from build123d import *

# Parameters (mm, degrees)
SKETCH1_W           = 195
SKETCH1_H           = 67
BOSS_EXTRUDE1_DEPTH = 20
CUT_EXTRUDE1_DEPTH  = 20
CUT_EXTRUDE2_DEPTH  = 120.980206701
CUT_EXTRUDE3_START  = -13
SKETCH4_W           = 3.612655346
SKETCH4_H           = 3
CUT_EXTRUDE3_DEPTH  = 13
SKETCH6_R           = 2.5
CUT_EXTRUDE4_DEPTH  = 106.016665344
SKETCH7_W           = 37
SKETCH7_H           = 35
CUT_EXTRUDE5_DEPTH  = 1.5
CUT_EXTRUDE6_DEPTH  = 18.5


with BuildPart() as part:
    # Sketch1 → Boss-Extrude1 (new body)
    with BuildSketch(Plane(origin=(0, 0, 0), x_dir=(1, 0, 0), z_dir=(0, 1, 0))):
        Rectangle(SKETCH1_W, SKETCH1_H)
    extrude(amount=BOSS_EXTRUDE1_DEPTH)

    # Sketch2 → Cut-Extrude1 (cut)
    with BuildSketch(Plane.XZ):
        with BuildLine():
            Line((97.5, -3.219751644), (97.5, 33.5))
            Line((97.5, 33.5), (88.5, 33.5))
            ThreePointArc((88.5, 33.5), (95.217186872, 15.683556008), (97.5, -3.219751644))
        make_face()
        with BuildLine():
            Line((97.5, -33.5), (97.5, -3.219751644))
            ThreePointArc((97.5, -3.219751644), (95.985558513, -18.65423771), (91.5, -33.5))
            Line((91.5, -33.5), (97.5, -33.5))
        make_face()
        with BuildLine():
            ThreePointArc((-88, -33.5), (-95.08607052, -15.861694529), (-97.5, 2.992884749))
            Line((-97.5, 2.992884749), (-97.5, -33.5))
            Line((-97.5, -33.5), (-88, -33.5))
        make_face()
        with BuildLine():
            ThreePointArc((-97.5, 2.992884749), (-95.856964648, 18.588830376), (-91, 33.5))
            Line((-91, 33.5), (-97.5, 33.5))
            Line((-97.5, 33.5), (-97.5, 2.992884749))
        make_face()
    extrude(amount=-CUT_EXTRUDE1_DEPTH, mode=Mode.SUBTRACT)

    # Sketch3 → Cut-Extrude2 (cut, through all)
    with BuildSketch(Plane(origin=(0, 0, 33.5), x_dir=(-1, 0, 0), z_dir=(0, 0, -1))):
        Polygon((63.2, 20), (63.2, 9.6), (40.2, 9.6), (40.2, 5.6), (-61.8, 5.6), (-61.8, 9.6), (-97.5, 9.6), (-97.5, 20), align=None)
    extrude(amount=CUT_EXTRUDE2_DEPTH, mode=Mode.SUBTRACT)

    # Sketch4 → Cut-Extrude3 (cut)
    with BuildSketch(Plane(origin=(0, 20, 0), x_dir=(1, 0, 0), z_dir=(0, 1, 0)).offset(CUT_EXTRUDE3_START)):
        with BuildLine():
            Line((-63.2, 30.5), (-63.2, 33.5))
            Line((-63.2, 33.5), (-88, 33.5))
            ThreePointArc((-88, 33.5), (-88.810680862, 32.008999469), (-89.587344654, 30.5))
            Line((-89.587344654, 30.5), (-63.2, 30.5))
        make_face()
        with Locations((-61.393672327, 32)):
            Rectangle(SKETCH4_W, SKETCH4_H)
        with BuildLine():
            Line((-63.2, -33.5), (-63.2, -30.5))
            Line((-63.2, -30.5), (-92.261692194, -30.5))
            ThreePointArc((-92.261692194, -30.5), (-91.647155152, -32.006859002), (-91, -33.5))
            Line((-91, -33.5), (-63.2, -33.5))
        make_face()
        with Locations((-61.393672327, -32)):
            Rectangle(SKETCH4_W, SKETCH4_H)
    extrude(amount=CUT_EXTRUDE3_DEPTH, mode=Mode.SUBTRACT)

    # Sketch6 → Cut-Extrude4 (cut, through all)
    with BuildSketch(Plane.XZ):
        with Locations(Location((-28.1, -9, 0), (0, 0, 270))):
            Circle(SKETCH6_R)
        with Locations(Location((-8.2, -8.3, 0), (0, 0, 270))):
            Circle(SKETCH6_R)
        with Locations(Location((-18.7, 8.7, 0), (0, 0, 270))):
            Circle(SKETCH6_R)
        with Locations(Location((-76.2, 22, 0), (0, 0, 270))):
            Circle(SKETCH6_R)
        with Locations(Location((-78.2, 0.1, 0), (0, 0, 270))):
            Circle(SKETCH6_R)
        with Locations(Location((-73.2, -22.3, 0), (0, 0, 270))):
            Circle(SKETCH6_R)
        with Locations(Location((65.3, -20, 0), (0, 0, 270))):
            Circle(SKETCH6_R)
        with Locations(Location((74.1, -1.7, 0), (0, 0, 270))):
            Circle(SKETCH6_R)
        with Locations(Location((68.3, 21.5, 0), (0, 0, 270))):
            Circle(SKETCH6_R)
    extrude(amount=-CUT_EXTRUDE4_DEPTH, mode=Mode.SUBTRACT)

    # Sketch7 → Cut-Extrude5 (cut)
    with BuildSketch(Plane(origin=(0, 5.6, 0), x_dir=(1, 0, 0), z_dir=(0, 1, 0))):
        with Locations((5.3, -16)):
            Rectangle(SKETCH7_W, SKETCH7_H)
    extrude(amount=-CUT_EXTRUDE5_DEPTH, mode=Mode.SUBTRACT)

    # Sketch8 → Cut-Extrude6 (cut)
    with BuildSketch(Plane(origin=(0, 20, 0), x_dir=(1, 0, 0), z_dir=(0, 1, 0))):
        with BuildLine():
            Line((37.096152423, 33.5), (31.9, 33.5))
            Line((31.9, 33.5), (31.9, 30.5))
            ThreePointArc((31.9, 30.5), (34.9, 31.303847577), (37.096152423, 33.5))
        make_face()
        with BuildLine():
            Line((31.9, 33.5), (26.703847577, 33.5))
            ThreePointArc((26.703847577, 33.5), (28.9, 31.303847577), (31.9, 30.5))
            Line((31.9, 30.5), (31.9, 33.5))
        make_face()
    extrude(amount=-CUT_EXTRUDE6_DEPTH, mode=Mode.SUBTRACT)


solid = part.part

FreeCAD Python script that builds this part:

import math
import FreeCAD as App
import Part
import Sketcher
from FreeCAD import Vector
Q = App.Units.Quantity

doc = App.newDocument("Part")
body = doc.addObject("PartDesign::Body", "Body")

# Sketch on XZ plane
sketch1 = body.newObject("Sketcher::SketchObject", "Sketch")
sketch1.AttachmentSupport = (doc.getObject("XZ_Plane"), [""])
sketch1.MapMode = "FlatFace"
sketch1.addGeometry([
    Part.LineSegment(Vector(-97.5, -33.5, 0), Vector(-97.5, 33.5, 0)),
    Part.LineSegment(Vector(-97.5, 33.5, 0), Vector(97.5, 33.5, 0)),
    Part.LineSegment(Vector(97.5, 33.5, 0), Vector(97.5, -33.5, 0)),
    Part.LineSegment(Vector(97.5, -33.5, 0), Vector(-97.5, -33.5, 0)),
], False)
sketch1.addConstraint([
    Sketcher.Constraint("Coincident", 0, 2, 1, 1),
    Sketcher.Constraint("Coincident", 1, 2, 2, 1),
    Sketcher.Constraint("Coincident", 2, 2, 3, 1),
    Sketcher.Constraint("Coincident", 3, 2, 0, 1),
    Sketcher.Constraint("Vertical", 0),
    Sketcher.Constraint("Horizontal", 1),
    Sketcher.Constraint("Vertical", 2),
    Sketcher.Constraint("Horizontal", 3),
    Sketcher.Constraint("Symmetric", 0, 2, 2, 2, -1, 1),
    Sketcher.Constraint("DistanceX", 1, 1, 1, 2, Q("195 mm")),
    Sketcher.Constraint("DistanceY", 0, 1, 0, 2, Q("67 mm")),
])
pad1 = body.newObject("PartDesign::Pad", "Pad")
pad1.Profile = sketch1
pad1.Length = 20
pad1.Reversed = True

# Sketch on XZ plane
sketch2 = body.newObject("Sketcher::SketchObject", "Sketch001")
sketch2.AttachmentSupport = (doc.getObject("XZ_Plane"), [""])
sketch2.MapMode = "FlatFace"
sketch2.addGeometry([
    Part.LineSegment(Vector(97.5, -3.219752, 0), Vector(97.5, 33.5, 0)),  # 0
    Part.LineSegment(Vector(97.5, 33.5, 0), Vector(88.5, 33.5, 0)),  # 1
    Part.ArcOfCircle(Part.Circle(Vector(18.092213, -3.219752, 0), Vector(0, 0, 1), 79.407787), math.radians(0), math.radians(27.543379)),  # 2
    Part.LineSegment(Vector(97.5, -33.5, 0), Vector(97.5, -3.219752, 0)),  # 3
    Part.ArcOfCircle(Part.Circle(Vector(18.092213, -3.219752, 0), Vector(0, 0, 1), 79.407787), math.radians(-22.415838), math.radians(0)),  # 4
    Part.LineSegment(Vector(91.5, -33.5, 0), Vector(97.5, -33.5, 0)),  # 5
    Part.ArcOfCircle(Part.Circle(Vector(-22.658915, 2.992884, 0), Vector(0, 0, 1), 74.841085), math.radians(180), math.radians(209.183284)),  # 6
    Part.LineSegment(Vector(-97.5, 2.992885, 0), Vector(-97.5, -33.5, 0)),  # 7
    Part.LineSegment(Vector(-97.5, -33.5, 0), Vector(-88, -33.5, 0)),  # 8
    Part.ArcOfCircle(Part.Circle(Vector(-22.658915, 2.992884, 0), Vector(0, 0, 1), 74.841085), math.radians(155.944256), math.radians(180)),  # 9
    Part.LineSegment(Vector(-91, 33.5, 0), Vector(-97.5, 33.5, 0)),  # 10
    Part.LineSegment(Vector(-97.5, 33.5, 0), Vector(-97.5, 2.992885, 0)),  # 11
], False)
sketch2.addConstraint([
    Sketcher.Constraint("Coincident", 0, 2, 1, 1),
    Sketcher.Constraint("Coincident", 1, 2, 2, 2),
    Sketcher.Constraint("Tangent", 2, 1, 0, 1),
    Sketcher.Constraint("Tangent", 3, 2, 4, 2),
    Sketcher.Constraint("Coincident", 4, 1, 5, 1),
    Sketcher.Constraint("Coincident", 5, 2, 3, 1),
    Sketcher.Constraint("Tangent", 6, 1, 7, 1),
    Sketcher.Constraint("Coincident", 7, 2, 8, 1),
    Sketcher.Constraint("Coincident", 8, 2, 6, 2),
    Sketcher.Constraint("Coincident", 9, 1, 10, 1),
    Sketcher.Constraint("Coincident", 10, 2, 11, 1),
    Sketcher.Constraint("Tangent", 11, 2, 9, 2),
    Sketcher.Constraint("Vertical", 0),
    Sketcher.Constraint("Horizontal", 1),
    Sketcher.Constraint("Vertical", 3),
    Sketcher.Constraint("Horizontal", 5),
    Sketcher.Constraint("Vertical", 7),
    Sketcher.Constraint("Horizontal", 8),
    Sketcher.Constraint("Horizontal", 10),
    Sketcher.Constraint("Vertical", 11),
    Sketcher.Constraint("Coincident", 4, 3, 2, 3),
    Sketcher.Constraint("Coincident", 9, 3, 6, 3),
    Sketcher.Constraint("Equal", 2, 4),
    Sketcher.Constraint("Equal", 6, 9),
    Sketcher.Constraint("Symmetric", 0, 2, 7, 2, -1, 1),
    Sketcher.Constraint("Horizontal", 5, 2, 7, 2),
    Sketcher.Constraint("Horizontal", 1, 2, 9, 1),
    Sketcher.Constraint("DistanceX", 1, 2, 1, 1, Q("9 mm")),
    Sketcher.Constraint("DistanceX", 5, 1, 5, 2, Q("6 mm")),
    Sketcher.Constraint("DistanceX", 8, 1, 8, 2, Q("9.5 mm")),
    Sketcher.Constraint("DistanceX", 10, 2, 10, 1, Q("6.5 mm")),
    Sketcher.Constraint("DistanceX", 8, 2, -1, 1, Q("88 mm")),
    Sketcher.Constraint("DistanceY", 4, 1, 1, 2, Q("67 mm")),
])
pocket1 = body.newObject("PartDesign::Pocket", "Pocket")
pocket1.Profile = sketch2
pocket1.Length = 20

# Sketch on XY plane
sketch3 = body.newObject("Sketcher::SketchObject", "Sketch002")
sketch3.AttachmentSupport = (doc.getObject("XY_Plane"), [""])
sketch3.MapMode = "FlatFace"
sketch3.AttachmentOffset = App.Placement(Vector(0, 0, 33.5), App.Rotation())
sketch3.addGeometry([
    Part.LineSegment(Vector(-63.2, 9.6, 0), Vector(-63.2, 20, 0)),  # 0
    Part.LineSegment(Vector(-63.2, 20, 0), Vector(97.5, 20, 0)),  # 1
    Part.LineSegment(Vector(97.5, 20, 0), Vector(97.5, 9.6, 0)),  # 2
    Part.LineSegment(Vector(97.5, 9.6, 0), Vector(61.8, 9.6, 0)),  # 3
    Part.LineSegment(Vector(61.8, 9.6, 0), Vector(61.8, 5.6, 0)),  # 4
    Part.LineSegment(Vector(61.8, 5.6, 0), Vector(-40.2, 5.6, 0)),  # 5
    Part.LineSegment(Vector(-40.2, 5.6, 0), Vector(-40.2, 9.6, 0)),  # 6
    Part.LineSegment(Vector(-40.2, 9.6, 0), Vector(-63.2, 9.6, 0)),  # 7
], False)
sketch3.addConstraint([
    Sketcher.Constraint("Coincident", 0, 2, 1, 1),
    Sketcher.Constraint("Coincident", 1, 2, 2, 1),
    Sketcher.Constraint("Coincident", 2, 2, 3, 1),
    Sketcher.Constraint("Coincident", 3, 2, 4, 1),
    Sketcher.Constraint("Coincident", 4, 2, 5, 1),
    Sketcher.Constraint("Coincident", 5, 2, 6, 1),
    Sketcher.Constraint("Coincident", 6, 2, 7, 1),
    Sketcher.Constraint("Coincident", 7, 2, 0, 1),
    Sketcher.Constraint("Vertical", 0),
    Sketcher.Constraint("Horizontal", 1),
    Sketcher.Constraint("Vertical", 2),
    Sketcher.Constraint("Horizontal", 3),
    Sketcher.Constraint("Vertical", 4),
    Sketcher.Constraint("Horizontal", 5),
    Sketcher.Constraint("Vertical", 6),
    Sketcher.Constraint("Horizontal", 7),
    Sketcher.Constraint("Horizontal", 3, 2, 6, 2),
    Sketcher.Constraint("DistanceX", 5, 2, 5, 1, Q("102 mm")),
    Sketcher.Constraint("DistanceX", 7, 2, 7, 1, Q("23 mm")),
    Sketcher.Constraint("DistanceY", 4, 2, 4, 1, Q("4 mm")),
    Sketcher.Constraint("DistanceX", 1, 1, 1, 2, Q("160.7 mm")),
    Sketcher.Constraint("DistanceY", 0, 1, 0, 2, Q("10.4 mm")),
    Sketcher.Constraint("DistanceY", -1, 1, 0, 2, Q("20 mm")),
    Sketcher.Constraint("DistanceX", 0, 2, -1, 1, Q("63.2 mm")),
])
pocket2 = body.newObject("PartDesign::Pocket", "Pocket001")
pocket2.Profile = sketch3
pocket2.Type = "ThroughAll"

# Sketch on XZ plane
sketch4 = body.newObject("Sketcher::SketchObject", "Sketch003")
sketch4.AttachmentSupport = (doc.getObject("XZ_Plane"), [""])
sketch4.MapMode = "FlatFace"
sketch4.AttachmentOffset = App.Placement(Vector(0, 0, -7), App.Rotation())
sketch4.addGeometry([
    Part.ArcOfCircle(Part.Circle(Vector(-22.658914, 2.992885, 0), Vector(0, 0, 1), 74.841086), math.radians(-153.415317), math.radians(-150.816716)),  # 0
    Part.LineSegment(Vector(-89.587345, -30.5, 0), Vector(-59.587345, -30.5, 0)),  # 1
    Part.LineSegment(Vector(-59.587345, -30.5, 0), Vector(-59.587345, -33.5, 0)),  # 2
    Part.LineSegment(Vector(-59.587345, -33.5, 0), Vector(-88, -33.5, 0)),  # 3
    Part.ArcOfCircle(Part.Circle(Vector(-22.658915, 2.992884, 0), Vector(0, 0, 1), 74.841085), math.radians(155.944256), math.radians(158.435998)),  # 4
    Part.LineSegment(Vector(-91, 33.5, 0), Vector(-59.587345, 33.5, 0)),  # 5
    Part.LineSegment(Vector(-59.587345, 33.5, 0), Vector(-59.587345, 30.5, 0)),  # 6
    Part.LineSegment(Vector(-59.587345, 30.5, 0), Vector(-92.261692, 30.5, 0)),  # 7
], False)
sketch4.addConstraint([
    Sketcher.Constraint("Coincident", 0, 1, 1, 1),
    Sketcher.Constraint("Coincident", 1, 2, 2, 1),
    Sketcher.Constraint("Coincident", 2, 2, 3, 1),
    Sketcher.Constraint("Coincident", 3, 2, 0, 2),
    Sketcher.Constraint("Coincident", 4, 1, 5, 1),
    Sketcher.Constraint("Coincident", 5, 2, 6, 1),
    Sketcher.Constraint("Coincident", 6, 2, 7, 1),
    Sketcher.Constraint("Coincident", 7, 2, 4, 2),
    Sketcher.Constraint("Horizontal", 1),
    Sketcher.Constraint("Vertical", 2),
    Sketcher.Constraint("Horizontal", 3),
    Sketcher.Constraint("Horizontal", 5),
    Sketcher.Constraint("Vertical", 6),
    Sketcher.Constraint("Horizontal", 7),
    Sketcher.Constraint("Coincident", 4, 3, 0, 3),
    Sketcher.Constraint("Equal", 0, 4),
    Sketcher.Constraint("Symmetric", 2, 2, 5, 2, -1),
    Sketcher.Constraint("Equal", 2, 6),
    Sketcher.Constraint("DistanceX", 1, 1, 1, 2, Q("30 mm")),
    Sketcher.Constraint("DistanceY", 2, 2, 2, 1, Q("3 mm")),
    Sketcher.Constraint("DistanceX", 3, 2, -1, 1, Q("88 mm")),
    Sketcher.Constraint("DistanceX", 4, 1, -1, 1, Q("91 mm")),
    Sketcher.Constraint("DistanceY", 0, 1, 4, 1, Q("64 mm")),
    Sketcher.Constraint("Radius", 0, Q("74.841086 mm")),
])
pocket3 = body.newObject("PartDesign::Pocket", "Pocket002")
pocket3.Profile = sketch4
pocket3.Length = 13

# Sketch on XZ plane
sketch5 = body.newObject("Sketcher::SketchObject", "Sketch004")
sketch5.AttachmentSupport = (doc.getObject("XZ_Plane"), [""])
sketch5.MapMode = "FlatFace"
sketch5.addGeometry([
    Part.Circle(Vector(-28.1, -9, 0), Vector(0, 0, 1), 2.5),  # 0
    Part.Circle(Vector(-8.2, -8.3, 0), Vector(0, 0, 1), 2.5),  # 1
    Part.Circle(Vector(-18.7, 8.7, 0), Vector(0, 0, 1), 2.5),  # 2
    Part.Circle(Vector(-76.2, 22, 0), Vector(0, 0, 1), 2.5),  # 3
    Part.Circle(Vector(-78.2, 0.1, 0), Vector(0, 0, 1), 2.5),  # 4
    Part.Circle(Vector(-73.2, -22.3, 0), Vector(0, 0, 1), 2.5),  # 5
    Part.Circle(Vector(65.3, -20, 0), Vector(0, 0, 1), 2.5),  # 6
    Part.Circle(Vector(74.1, -1.7, 0), Vector(0, 0, 1), 2.5),  # 7
    Part.Circle(Vector(68.3, 21.5, 0), Vector(0, 0, 1), 2.5),  # 8
], False)
sketch5.addConstraint([
    Sketcher.Constraint("Equal", 0, 1),
    Sketcher.Constraint("Equal", 1, 2),
    Sketcher.Constraint("Equal", 2, 3),
    Sketcher.Constraint("Equal", 3, 4),
    Sketcher.Constraint("Equal", 4, 5),
    Sketcher.Constraint("Equal", 5, 6),
    Sketcher.Constraint("Equal", 6, 7),
    Sketcher.Constraint("Equal", 7, 8),
    Sketcher.Constraint("Diameter", 0, Q("5 mm")),
    Sketcher.Constraint("DistanceY", 0, 3, -1, 1, Q("9 mm")),
    Sketcher.Constraint("DistanceY", -1, 1, 3, 3, Q("22 mm")),
    Sketcher.Constraint("DistanceY", 6, 3, -1, 1, Q("20 mm")),
    Sketcher.Constraint("DistanceY", 1, 3, 2, 3, Q("17 mm")),
    Sketcher.Constraint("DistanceX", 3, 3, 1, 3, Q("68 mm")),
    Sketcher.Constraint("DistanceX", 4, 3, 3, 3, Q("2 mm")),
    Sketcher.Constraint("DistanceX", 4, 3, 5, 3, Q("5 mm")),
    Sketcher.Constraint("DistanceY", 5, 3, 2, 3, Q("31 mm")),
    Sketcher.Constraint("DistanceX", 2, 3, 6, 3, Q("84 mm")),
    Sketcher.Constraint("DistanceX", 6, 3, 8, 3, Q("3 mm")),
    Sketcher.Constraint("DistanceX", 0, 3, -1, 1, Q("28.1 mm")),
    Sketcher.Constraint("DistanceX", 1, 3, -1, 1, Q("8.2 mm")),
    Sketcher.Constraint("DistanceY", 1, 3, -1, 1, Q("8.3 mm")),
    Sketcher.Constraint("DistanceX", 2, 3, -1, 1, Q("18.7 mm")),
    Sketcher.Constraint("DistanceY", -1, 1, 4, 3, Q("0.1 mm")),
    Sketcher.Constraint("DistanceX", -1, 1, 7, 3, Q("74.1 mm")),
    Sketcher.Constraint("DistanceY", 7, 3, -1, 1, Q("1.7 mm")),
    Sketcher.Constraint("DistanceY", -1, 1, 8, 3, Q("21.5 mm")),
])
pocket4 = body.newObject("PartDesign::Pocket", "Pocket003")
pocket4.Profile = sketch5
pocket4.Type = "ThroughAll"

# Sketch on XZ plane
sketch6 = body.newObject("Sketcher::SketchObject", "Sketch005")
sketch6.AttachmentSupport = (doc.getObject("XZ_Plane"), [""])
sketch6.MapMode = "FlatFace"
sketch6.AttachmentOffset = App.Placement(Vector(0, 0, -5.6), App.Rotation())
sketch6.addGeometry([
    Part.LineSegment(Vector(-13.2, -1.5, 0), Vector(-13.2, 33.5, 0)),
    Part.LineSegment(Vector(-13.2, 33.5, 0), Vector(23.8, 33.5, 0)),
    Part.LineSegment(Vector(23.8, 33.5, 0), Vector(23.8, -1.5, 0)),
    Part.LineSegment(Vector(23.8, -1.5, 0), Vector(-13.2, -1.5, 0)),
], False)
sketch6.addConstraint([
    Sketcher.Constraint("Coincident", 0, 2, 1, 1),
    Sketcher.Constraint("Coincident", 1, 2, 2, 1),
    Sketcher.Constraint("Coincident", 2, 2, 3, 1),
    Sketcher.Constraint("Coincident", 3, 2, 0, 1),
    Sketcher.Constraint("Vertical", 0),
    Sketcher.Constraint("Horizontal", 1),
    Sketcher.Constraint("Vertical", 2),
    Sketcher.Constraint("Horizontal", 3),
    Sketcher.Constraint("DistanceX", 1, 1, 1, 2, Q("37 mm")),
    Sketcher.Constraint("DistanceY", 0, 1, 0, 2, Q("35 mm")),
    Sketcher.Constraint("DistanceX", 0, 2, -1, 1, Q("13.2 mm")),
    Sketcher.Constraint("DistanceY", -1, 1, 0, 2, Q("33.5 mm")),
])
pocket5 = body.newObject("PartDesign::Pocket", "Pocket004")
pocket5.Profile = sketch6
pocket5.Length = 1.5
pocket5.Reversed = True

# Sketch on XZ plane
sketch7 = body.newObject("Sketcher::SketchObject", "Sketch006")
sketch7.AttachmentSupport = (doc.getObject("XZ_Plane"), [""])
sketch7.MapMode = "FlatFace"
sketch7.AttachmentOffset = App.Placement(Vector(0, 0, -20), App.Rotation())
sketch7.addGeometry([
    Part.LineSegment(Vector(37.096152, -33.5, 0), Vector(26.703848, -33.5, 0)),
    Part.ArcOfCircle(Part.Circle(Vector(31.9, -36.5, 0), Vector(0, 0, 1), 6), math.radians(90), math.radians(150)),
    Part.ArcOfCircle(Part.Circle(Vector(31.9, -36.5, 0), Vector(0, 0, 1), 6), math.radians(30), math.radians(90)),
], False)
sketch7.addConstraint([
    Sketcher.Constraint("Coincident", 0, 2, 1, 2),
    Sketcher.Constraint("Tangent", 1, 1, 2, 2),
    Sketcher.Constraint("Coincident", 2, 1, 0, 1),
    Sketcher.Constraint("Horizontal", 0),
    Sketcher.Constraint("Equal", 1, 2),
    Sketcher.Constraint("Vertical", 2, 3, 1, 1),
    Sketcher.Constraint("Radius", 1, Q("6 mm")),
    Sketcher.Constraint("DistanceY", 1, 3, 0, 2, Q("3 mm")),
    Sketcher.Constraint("DistanceX", -1, 1, 1, 3, Q("31.9 mm")),
    Sketcher.Constraint("DistanceY", 1, 3, -1, 1, Q("36.5 mm")),
])
pocket6 = body.newObject("PartDesign::Pocket", "Pocket005")
pocket6.Profile = sketch7
pocket6.Length = 18.5
pocket6.Reversed = True

doc.recompute()
